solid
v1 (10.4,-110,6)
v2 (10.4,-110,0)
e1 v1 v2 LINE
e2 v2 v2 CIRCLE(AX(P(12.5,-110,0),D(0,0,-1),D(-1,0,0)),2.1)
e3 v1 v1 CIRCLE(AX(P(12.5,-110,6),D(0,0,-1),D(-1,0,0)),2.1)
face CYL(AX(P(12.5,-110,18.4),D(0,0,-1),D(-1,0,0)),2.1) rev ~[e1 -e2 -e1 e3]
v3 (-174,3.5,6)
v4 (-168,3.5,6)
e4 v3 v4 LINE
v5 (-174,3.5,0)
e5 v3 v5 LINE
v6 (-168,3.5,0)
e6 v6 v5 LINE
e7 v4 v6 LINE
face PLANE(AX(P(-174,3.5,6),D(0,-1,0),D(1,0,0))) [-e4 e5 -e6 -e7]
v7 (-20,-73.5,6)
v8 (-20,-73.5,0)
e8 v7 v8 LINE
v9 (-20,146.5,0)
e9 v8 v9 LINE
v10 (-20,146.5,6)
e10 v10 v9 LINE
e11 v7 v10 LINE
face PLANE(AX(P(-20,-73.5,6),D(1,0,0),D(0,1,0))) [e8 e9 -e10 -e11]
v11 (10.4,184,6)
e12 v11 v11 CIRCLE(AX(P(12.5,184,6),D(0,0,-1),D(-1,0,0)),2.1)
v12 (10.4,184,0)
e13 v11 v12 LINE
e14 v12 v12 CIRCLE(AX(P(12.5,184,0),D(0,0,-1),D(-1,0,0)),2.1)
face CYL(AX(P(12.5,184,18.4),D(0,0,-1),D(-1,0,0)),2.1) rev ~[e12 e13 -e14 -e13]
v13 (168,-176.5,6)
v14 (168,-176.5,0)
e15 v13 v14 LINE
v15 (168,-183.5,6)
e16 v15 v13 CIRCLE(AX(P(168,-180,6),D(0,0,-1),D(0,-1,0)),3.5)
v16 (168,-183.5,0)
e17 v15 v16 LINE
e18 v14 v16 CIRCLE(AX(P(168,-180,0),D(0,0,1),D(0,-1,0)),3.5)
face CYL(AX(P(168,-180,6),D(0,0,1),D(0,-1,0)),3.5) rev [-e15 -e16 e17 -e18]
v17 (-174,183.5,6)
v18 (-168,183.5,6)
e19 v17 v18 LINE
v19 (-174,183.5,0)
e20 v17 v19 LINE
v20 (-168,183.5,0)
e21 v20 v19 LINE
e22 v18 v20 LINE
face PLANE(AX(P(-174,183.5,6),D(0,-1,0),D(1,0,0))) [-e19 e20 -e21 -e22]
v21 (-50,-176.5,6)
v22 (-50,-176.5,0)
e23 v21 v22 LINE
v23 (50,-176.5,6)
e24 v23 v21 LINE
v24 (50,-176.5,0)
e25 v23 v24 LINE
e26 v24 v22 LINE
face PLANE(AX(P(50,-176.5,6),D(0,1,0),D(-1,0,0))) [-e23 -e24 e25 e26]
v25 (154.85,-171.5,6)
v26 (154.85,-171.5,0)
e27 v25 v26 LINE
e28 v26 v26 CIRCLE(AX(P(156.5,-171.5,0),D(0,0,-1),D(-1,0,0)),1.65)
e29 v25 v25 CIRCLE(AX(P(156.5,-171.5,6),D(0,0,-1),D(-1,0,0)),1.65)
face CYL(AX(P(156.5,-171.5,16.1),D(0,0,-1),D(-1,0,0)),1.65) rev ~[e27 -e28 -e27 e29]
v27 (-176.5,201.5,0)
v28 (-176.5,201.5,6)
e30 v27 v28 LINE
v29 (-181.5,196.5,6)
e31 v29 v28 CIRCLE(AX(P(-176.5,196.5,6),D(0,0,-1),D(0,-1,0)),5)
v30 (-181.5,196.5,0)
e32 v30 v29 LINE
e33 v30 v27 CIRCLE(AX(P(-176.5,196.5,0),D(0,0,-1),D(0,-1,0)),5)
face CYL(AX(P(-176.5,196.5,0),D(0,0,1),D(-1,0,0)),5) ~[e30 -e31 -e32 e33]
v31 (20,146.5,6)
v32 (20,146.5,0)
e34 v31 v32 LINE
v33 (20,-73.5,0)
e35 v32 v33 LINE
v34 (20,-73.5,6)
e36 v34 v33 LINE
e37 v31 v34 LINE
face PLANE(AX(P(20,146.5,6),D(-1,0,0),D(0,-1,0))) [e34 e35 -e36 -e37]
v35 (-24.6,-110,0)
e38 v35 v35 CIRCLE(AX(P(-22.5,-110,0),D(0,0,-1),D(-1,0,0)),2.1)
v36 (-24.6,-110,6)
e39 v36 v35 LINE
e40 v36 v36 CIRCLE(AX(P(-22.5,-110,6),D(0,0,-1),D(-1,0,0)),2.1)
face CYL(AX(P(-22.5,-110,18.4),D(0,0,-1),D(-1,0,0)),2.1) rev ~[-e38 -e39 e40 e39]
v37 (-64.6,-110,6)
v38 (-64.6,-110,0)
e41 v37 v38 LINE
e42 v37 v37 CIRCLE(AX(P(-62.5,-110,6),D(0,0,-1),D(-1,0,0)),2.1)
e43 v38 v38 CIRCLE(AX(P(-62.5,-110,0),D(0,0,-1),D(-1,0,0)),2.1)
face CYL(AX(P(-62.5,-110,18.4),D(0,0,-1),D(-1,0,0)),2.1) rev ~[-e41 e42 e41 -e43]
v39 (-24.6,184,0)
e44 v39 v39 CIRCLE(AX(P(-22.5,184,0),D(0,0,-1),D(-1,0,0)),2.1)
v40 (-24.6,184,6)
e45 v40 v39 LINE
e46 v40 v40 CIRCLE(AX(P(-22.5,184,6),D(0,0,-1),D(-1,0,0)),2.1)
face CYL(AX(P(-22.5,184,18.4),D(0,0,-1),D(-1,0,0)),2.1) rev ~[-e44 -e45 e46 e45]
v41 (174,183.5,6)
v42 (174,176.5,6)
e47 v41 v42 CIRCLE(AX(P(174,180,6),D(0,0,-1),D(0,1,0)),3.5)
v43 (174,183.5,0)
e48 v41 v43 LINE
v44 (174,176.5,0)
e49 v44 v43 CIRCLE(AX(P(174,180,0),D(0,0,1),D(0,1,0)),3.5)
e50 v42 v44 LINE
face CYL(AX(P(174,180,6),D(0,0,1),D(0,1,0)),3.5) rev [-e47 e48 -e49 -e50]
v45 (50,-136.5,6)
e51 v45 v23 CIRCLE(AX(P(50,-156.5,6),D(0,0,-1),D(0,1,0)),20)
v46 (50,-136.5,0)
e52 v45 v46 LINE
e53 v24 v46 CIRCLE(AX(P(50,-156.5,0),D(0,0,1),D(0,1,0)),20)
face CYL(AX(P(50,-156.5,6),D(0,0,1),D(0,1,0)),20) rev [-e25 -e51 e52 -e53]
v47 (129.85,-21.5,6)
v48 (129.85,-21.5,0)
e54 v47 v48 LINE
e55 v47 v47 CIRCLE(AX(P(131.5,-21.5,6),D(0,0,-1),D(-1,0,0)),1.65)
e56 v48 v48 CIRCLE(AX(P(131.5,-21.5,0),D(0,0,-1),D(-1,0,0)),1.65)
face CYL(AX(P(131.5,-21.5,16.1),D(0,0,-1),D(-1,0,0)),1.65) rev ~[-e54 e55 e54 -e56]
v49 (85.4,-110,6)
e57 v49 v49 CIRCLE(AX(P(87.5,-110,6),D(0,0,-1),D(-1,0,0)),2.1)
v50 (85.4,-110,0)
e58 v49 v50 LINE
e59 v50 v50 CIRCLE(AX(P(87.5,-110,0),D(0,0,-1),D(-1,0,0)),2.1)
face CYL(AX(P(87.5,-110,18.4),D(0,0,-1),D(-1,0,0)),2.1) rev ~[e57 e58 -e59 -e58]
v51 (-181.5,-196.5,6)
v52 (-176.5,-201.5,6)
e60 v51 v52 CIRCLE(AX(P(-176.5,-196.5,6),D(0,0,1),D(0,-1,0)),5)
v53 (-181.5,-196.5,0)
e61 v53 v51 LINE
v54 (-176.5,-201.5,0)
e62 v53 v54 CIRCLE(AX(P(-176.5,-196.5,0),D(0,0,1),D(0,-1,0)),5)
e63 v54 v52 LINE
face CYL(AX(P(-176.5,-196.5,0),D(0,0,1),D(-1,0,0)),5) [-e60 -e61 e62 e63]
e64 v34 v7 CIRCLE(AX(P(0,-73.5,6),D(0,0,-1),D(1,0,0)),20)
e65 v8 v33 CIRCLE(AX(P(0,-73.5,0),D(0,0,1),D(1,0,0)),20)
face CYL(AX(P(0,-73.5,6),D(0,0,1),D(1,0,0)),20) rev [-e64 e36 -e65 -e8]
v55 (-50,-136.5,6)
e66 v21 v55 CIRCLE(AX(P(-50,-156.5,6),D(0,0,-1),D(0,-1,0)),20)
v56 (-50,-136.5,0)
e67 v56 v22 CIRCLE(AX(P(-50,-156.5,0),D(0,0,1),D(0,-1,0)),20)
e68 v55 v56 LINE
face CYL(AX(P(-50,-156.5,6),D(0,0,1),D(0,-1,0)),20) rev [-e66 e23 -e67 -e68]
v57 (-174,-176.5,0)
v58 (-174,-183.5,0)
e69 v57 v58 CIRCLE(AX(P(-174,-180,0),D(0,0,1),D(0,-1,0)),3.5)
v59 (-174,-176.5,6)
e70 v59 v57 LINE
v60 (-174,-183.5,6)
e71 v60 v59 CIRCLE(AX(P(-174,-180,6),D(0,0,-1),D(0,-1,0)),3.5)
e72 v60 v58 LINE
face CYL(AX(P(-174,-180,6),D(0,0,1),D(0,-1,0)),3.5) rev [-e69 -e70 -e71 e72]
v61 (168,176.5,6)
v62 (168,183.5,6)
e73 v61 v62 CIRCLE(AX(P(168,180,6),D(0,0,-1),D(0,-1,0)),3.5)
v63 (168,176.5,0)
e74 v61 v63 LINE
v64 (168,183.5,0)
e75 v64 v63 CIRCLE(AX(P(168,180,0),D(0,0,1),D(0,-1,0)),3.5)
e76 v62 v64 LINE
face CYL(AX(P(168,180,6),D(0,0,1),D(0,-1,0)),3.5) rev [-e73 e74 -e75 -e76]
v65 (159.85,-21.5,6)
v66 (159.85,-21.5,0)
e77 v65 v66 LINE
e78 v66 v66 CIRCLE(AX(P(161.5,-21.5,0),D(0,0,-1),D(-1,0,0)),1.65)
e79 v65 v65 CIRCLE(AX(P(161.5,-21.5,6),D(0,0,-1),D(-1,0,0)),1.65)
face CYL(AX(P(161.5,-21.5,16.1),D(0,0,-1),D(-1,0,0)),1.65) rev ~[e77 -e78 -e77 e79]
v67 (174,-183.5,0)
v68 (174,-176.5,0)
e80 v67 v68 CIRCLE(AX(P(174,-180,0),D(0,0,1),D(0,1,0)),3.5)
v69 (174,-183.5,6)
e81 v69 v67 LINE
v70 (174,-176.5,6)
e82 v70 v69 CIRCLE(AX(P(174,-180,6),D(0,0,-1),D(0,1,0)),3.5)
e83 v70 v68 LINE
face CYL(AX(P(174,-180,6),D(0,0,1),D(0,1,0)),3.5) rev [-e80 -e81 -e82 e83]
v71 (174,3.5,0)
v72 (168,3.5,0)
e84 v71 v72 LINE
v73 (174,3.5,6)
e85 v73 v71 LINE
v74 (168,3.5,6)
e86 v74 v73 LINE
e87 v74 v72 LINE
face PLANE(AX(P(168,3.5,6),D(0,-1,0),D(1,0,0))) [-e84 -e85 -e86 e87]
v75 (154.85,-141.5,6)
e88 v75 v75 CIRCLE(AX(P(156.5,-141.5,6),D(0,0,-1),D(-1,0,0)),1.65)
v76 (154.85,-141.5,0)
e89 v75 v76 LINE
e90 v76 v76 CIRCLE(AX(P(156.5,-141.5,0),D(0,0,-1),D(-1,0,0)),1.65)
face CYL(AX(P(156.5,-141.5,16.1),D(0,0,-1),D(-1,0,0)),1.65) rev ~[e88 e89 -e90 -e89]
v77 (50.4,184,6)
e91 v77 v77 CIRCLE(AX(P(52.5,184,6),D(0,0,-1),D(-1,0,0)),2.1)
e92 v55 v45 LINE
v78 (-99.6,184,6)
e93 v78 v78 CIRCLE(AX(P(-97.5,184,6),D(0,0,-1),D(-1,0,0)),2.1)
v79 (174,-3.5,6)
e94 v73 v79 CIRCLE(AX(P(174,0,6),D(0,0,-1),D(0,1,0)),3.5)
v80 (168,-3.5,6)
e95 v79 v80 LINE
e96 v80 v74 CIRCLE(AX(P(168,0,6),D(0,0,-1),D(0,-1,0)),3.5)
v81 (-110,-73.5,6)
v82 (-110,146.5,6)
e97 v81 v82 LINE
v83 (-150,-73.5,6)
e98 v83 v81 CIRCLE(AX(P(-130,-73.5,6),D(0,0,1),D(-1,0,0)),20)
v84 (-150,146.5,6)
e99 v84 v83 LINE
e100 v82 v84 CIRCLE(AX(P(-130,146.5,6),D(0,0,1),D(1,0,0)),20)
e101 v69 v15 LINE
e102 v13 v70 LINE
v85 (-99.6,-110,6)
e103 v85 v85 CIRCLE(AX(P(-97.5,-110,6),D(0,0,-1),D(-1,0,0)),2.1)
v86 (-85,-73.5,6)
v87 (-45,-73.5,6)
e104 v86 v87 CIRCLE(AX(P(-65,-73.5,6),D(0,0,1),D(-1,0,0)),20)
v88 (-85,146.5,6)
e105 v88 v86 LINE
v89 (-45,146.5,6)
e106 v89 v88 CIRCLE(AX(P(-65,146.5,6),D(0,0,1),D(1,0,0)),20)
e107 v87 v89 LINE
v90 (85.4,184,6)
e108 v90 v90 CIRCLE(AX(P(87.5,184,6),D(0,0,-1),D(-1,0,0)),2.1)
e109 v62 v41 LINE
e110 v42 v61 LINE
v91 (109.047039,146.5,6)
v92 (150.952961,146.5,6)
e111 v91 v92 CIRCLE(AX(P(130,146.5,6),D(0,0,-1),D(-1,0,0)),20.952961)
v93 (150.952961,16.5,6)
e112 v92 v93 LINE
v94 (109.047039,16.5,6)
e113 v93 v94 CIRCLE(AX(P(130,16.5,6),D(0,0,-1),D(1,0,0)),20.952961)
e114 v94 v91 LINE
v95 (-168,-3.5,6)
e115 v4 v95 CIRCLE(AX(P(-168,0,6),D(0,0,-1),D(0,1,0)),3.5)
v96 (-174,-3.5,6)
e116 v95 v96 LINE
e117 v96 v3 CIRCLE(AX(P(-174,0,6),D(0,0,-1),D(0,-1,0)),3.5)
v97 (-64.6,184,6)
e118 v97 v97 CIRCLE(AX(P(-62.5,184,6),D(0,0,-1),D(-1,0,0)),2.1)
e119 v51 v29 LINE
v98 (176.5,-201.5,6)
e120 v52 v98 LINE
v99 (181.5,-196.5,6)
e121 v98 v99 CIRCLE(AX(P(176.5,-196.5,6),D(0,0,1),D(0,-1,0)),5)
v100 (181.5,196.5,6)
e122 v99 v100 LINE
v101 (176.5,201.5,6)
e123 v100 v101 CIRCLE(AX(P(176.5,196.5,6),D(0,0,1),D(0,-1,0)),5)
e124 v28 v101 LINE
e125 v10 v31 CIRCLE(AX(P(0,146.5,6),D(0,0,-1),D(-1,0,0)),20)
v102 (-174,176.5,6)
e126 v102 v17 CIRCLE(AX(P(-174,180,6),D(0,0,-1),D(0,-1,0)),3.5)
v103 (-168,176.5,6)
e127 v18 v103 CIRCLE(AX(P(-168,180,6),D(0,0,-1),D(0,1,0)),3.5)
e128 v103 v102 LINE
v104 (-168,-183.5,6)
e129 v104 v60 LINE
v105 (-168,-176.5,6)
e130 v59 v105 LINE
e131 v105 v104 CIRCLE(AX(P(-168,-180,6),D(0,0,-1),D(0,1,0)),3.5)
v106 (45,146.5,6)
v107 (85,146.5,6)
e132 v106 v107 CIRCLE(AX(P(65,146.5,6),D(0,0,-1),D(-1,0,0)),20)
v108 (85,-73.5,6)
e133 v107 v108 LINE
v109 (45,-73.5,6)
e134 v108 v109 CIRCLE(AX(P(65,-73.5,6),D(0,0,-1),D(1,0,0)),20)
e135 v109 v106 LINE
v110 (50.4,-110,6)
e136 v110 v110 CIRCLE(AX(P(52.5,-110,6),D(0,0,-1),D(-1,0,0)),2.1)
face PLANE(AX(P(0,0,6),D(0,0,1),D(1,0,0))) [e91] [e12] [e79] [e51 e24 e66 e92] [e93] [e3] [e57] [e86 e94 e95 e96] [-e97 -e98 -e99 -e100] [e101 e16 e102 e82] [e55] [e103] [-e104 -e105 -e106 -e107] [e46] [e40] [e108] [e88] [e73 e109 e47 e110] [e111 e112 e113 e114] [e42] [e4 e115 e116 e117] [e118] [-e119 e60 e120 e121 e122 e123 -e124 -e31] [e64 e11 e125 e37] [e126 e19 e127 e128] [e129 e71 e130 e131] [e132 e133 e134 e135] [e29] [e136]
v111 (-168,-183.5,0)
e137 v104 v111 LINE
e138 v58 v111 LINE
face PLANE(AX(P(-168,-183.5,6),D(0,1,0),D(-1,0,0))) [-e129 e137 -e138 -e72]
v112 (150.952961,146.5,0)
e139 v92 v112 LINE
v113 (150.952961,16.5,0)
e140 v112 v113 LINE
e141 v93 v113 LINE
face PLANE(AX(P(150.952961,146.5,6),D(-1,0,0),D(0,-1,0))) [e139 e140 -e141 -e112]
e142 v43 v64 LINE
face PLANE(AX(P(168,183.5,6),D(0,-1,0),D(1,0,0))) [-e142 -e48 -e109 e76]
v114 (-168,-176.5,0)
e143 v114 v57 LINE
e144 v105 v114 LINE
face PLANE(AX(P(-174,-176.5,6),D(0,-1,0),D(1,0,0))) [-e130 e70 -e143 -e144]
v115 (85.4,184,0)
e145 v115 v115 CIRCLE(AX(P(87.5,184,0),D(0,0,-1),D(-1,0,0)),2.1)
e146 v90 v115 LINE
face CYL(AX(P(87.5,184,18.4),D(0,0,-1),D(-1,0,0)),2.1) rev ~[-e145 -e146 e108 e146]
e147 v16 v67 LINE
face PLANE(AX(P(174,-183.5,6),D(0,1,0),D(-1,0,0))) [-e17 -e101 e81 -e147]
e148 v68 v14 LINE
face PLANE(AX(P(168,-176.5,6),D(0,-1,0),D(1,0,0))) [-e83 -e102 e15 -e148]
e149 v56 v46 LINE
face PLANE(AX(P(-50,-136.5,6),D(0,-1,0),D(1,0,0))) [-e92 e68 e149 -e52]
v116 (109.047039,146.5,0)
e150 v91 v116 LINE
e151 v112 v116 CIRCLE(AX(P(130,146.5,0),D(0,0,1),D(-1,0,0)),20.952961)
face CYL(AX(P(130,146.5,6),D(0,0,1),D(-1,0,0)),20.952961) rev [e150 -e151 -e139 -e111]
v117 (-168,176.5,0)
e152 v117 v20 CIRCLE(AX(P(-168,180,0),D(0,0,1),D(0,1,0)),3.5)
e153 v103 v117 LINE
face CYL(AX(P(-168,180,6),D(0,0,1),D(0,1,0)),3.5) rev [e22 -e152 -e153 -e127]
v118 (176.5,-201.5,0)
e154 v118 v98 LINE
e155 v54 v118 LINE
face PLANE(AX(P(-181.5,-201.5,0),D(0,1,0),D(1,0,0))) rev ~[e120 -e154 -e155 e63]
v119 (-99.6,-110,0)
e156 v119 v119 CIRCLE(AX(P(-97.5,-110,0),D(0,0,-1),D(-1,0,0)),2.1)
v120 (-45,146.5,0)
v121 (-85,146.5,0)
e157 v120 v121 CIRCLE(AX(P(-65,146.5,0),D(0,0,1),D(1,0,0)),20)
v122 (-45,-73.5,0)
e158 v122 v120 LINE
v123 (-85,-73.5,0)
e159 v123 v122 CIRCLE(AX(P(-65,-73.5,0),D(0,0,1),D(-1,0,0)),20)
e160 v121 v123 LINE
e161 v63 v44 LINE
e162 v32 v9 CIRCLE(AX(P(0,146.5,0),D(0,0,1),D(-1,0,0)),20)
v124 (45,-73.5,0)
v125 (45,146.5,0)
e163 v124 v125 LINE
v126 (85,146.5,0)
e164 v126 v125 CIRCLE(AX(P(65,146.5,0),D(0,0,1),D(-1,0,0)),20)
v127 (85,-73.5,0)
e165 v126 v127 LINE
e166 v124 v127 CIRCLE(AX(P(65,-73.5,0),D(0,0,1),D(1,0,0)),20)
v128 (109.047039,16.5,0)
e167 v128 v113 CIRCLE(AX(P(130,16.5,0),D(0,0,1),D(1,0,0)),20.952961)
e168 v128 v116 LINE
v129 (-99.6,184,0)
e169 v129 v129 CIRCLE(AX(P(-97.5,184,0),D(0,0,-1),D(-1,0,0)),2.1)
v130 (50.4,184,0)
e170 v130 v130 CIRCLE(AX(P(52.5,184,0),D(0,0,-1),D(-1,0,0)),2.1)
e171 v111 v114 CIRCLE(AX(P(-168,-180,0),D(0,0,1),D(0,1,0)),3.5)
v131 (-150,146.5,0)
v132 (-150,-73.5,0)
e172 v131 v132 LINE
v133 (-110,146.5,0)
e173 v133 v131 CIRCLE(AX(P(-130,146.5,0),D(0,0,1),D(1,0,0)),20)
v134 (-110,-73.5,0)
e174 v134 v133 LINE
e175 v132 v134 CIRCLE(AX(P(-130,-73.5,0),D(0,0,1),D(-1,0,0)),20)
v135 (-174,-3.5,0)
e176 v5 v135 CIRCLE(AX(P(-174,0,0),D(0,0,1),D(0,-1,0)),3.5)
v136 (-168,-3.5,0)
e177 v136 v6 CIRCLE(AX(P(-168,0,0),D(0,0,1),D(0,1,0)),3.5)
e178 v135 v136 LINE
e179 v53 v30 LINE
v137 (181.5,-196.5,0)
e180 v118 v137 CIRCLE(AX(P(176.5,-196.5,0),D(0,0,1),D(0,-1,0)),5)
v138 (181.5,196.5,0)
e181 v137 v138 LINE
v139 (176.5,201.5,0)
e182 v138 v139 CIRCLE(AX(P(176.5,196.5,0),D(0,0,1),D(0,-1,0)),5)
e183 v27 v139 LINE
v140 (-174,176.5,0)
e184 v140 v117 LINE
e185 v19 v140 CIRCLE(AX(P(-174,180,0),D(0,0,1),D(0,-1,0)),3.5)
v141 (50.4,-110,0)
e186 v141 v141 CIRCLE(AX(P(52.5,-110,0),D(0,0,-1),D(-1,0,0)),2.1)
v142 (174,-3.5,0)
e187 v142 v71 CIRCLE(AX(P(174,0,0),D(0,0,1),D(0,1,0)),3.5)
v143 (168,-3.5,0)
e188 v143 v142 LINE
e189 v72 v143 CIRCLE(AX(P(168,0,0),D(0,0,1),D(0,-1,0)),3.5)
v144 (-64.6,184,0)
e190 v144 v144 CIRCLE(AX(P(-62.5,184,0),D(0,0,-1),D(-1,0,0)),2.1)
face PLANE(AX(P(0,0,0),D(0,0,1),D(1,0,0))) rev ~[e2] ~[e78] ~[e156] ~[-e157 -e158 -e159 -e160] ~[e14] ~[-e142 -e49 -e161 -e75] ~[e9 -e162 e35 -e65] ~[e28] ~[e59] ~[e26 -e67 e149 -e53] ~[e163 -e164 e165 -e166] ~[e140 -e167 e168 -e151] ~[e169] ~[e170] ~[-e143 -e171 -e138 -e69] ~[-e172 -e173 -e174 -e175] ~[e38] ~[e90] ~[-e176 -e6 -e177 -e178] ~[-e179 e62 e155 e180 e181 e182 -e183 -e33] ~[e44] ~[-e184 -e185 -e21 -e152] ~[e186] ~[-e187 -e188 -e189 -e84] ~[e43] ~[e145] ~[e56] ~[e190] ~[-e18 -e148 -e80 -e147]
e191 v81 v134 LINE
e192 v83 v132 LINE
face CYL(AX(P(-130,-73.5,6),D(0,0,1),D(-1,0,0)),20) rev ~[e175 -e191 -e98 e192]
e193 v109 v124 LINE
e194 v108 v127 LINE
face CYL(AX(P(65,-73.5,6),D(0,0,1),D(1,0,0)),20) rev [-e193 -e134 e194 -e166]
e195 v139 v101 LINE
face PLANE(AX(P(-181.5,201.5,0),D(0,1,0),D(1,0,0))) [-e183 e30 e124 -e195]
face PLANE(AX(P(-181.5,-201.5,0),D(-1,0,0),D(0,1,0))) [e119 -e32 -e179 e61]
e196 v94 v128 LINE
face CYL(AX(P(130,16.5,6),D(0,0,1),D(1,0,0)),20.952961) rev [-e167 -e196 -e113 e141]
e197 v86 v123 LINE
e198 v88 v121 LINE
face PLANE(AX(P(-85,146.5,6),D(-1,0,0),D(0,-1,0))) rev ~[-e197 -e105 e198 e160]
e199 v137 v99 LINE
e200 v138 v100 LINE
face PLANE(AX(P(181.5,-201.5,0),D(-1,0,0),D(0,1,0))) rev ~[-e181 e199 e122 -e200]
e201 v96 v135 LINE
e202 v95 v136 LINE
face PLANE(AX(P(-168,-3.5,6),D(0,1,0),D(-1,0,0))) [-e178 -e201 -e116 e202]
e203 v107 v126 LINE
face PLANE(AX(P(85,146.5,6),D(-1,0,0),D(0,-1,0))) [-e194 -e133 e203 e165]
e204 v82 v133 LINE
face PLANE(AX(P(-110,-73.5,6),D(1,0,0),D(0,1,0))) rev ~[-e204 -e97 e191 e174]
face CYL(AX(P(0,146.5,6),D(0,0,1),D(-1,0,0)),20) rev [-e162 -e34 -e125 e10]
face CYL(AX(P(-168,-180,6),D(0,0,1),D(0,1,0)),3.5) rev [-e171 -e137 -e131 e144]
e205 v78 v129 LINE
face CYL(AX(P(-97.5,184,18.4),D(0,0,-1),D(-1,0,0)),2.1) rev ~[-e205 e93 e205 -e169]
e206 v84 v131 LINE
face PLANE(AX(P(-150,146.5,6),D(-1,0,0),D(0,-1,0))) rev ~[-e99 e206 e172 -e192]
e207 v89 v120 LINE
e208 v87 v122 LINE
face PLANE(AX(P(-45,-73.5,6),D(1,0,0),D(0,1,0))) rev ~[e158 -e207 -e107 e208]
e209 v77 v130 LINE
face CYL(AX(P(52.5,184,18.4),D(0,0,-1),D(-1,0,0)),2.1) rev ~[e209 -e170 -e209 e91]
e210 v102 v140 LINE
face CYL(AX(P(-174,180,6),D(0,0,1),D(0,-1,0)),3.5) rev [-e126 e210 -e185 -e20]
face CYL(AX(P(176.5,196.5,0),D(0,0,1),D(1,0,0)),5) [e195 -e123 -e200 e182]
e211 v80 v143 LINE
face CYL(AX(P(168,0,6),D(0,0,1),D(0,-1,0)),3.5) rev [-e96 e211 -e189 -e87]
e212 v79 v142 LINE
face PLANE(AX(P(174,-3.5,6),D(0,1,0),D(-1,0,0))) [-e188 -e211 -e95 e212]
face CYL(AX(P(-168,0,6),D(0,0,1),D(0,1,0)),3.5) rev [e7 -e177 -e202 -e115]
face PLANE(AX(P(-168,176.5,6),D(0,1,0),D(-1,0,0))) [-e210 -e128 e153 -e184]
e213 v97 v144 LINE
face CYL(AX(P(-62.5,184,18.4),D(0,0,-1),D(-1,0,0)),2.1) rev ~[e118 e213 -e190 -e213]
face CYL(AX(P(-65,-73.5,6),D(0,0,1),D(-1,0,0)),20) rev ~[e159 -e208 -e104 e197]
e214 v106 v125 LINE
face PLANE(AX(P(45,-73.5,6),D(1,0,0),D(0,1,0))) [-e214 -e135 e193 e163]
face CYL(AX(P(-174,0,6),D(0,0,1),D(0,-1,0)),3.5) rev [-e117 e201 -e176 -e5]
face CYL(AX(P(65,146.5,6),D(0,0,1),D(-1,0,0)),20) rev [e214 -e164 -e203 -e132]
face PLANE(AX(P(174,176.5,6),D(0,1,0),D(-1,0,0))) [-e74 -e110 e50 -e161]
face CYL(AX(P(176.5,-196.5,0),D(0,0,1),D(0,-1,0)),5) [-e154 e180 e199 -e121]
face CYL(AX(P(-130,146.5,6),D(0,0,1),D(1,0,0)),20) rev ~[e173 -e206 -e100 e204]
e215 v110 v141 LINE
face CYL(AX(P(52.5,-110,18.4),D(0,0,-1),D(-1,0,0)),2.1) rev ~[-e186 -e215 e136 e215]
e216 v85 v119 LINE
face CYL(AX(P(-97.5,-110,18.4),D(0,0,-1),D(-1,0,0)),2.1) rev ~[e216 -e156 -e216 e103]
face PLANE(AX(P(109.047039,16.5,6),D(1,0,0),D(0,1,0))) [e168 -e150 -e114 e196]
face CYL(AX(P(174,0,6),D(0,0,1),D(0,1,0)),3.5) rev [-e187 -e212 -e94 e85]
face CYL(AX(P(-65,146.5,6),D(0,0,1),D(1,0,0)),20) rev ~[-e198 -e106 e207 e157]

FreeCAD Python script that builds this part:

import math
import FreeCAD as App
import Part
import Sketcher
Q = App.Units.Quantity


def edges_at(feature, points):
    """Names of the edges that pass closest to the given points."""
    edges = feature.Shape.Edges
    near = lambda p: min(range(len(edges)), key=lambda i: edges[i].distToShape(Part.Vertex(*p))[0])
    return sorted({f"Edge{near(p) + 1}" for p in points})

doc = App.newDocument("Part")
body = doc.addObject("PartDesign::Body", "Body")

# Sketch on XY plane
sketch1 = body.newObject("Sketcher::SketchObject", "Sketch")
sketch1.AttachmentSupport = (doc.getObject("XY_Plane"), [""])
sketch1.MapMode = "FlatFace"
sketch1.addGeometry(Part.LineSegment(App.Vector(-182, 202, 0), App.Vector(-182, -202, 0)), False)
sketch1.addGeometry(Part.LineSegment(App.Vector(-182, -202, 0), App.Vector(182, -202, 0)), False)
sketch1.addGeometry(Part.LineSegment(App.Vector(182, -202, 0), App.Vector(182, 202, 0)), False)
sketch1.addGeometry(Part.LineSegment(App.Vector(182, 202, 0), App.Vector(-182, 202, 0)), False)
sketch1.addConstraint(Sketcher.Constraint("Coincident", 0, 2, 1, 1))
sketch1.addConstraint(Sketcher.Constraint("Coincident", 1, 2, 2, 1))
sketch1.addConstraint(Sketcher.Constraint("Coincident", 2, 2, 3, 1))
sketch1.addConstraint(Sketcher.Constraint("Coincident", 3, 2, 0, 1))
sketch1.addConstraint(Sketcher.Constraint("Vertical", 0))
sketch1.addConstraint(Sketcher.Constraint("Horizontal", 1))
sketch1.addConstraint(Sketcher.Constraint("Vertical", 2))
sketch1.addConstraint(Sketcher.Constraint("Horizontal", 3))
sketch1.addConstraint(Sketcher.Constraint("Symmetric", 0, 2, 2, 2, -1, 1))
sketch1.addConstraint(Sketcher.Constraint("DistanceX", 1, 1, 1, 2, Q("363 mm")))
sketch1.addConstraint(Sketcher.Constraint("DistanceY", 0, 2, 0, 1, Q("403 mm")))
pad1 = body.newObject("PartDesign::Pad", "Pad")
pad1.Profile = sketch1
pad1.Length = 6
doc.recompute()

fillet = body.newObject("PartDesign::Fillet", "Fillet")
fillet.Base = (pad1, edges_at(pad1, [
    (181.5, -201.5, 3),
    (-181.5, -201.5, 3),
    (-181.5, 201.5, 3),
    (181.5, 201.5, 3),
]))
fillet.Radius = 5

# Sketch on XY plane
sketch2 = body.newObject("Sketcher::SketchObject", "Sketch001")
sketch2.AttachmentSupport = (doc.getObject("XY_Plane"), [""])
sketch2.MapMode = "FlatFace"
sketch2.AttachmentOffset = App.Placement(App.Vector(0, 0, 6), App.Rotation())
sketch2.addGeometry(Part.Circle(App.Vector(-171, -180, 0), App.Vector(0, 0, 1), 3.5), False)
sketch2.addGeometry(Part.Circle(App.Vector(-171, 180, 0), App.Vector(0, 0, 1), 3.5), False)
sketch2.addGeometry(Part.Circle(App.Vector(-171, 0, 0), App.Vector(0, 0, 1), 3.5), False)
sketch2.addGeometry(Part.Circle(App.Vector(171, 0, 0), App.Vector(0, 0, 1), 3.5), False)
sketch2.addGeometry(Part.Circle(App.Vector(171, 180, 0), App.Vector(0, 0, 1), 3.5), False)
sketch2.addGeometry(Part.Circle(App.Vector(171, -180, 0), App.Vector(0, 0, 1), 3.5), False)
sketch2.addConstraint(Sketcher.Constraint("Equal", 0, 1))
sketch2.addConstraint(Sketcher.Constraint("Equal", 1, 2))
sketch2.addConstraint(Sketcher.Constraint("Equal", 2, 3))
sketch2.addConstraint(Sketcher.Constraint("Equal", 3, 4))
sketch2.addConstraint(Sketcher.Constraint("Equal", 4, 5))
sketch2.addConstraint(Sketcher.Constraint("Symmetric", 2, 3, 3, 3, -1, 1))
sketch2.addConstraint(Sketcher.Constraint("Symmetric", 0, 3, 4, 3, -1, 1))
sketch2.addConstraint(Sketcher.Constraint("Symmetric", 1, 3, 5, 3, -1, 1))
sketch2.addConstraint(Sketcher.Constraint("Symmetric", 1, 3, 4, 3, -2))
sketch2.addConstraint(Sketcher.Constraint("PointOnObject", 2, 3, -1))
sketch2.addConstraint(Sketcher.Constraint("Vertical", 1, 3, 2, 3))
sketch2.addConstraint(Sketcher.Constraint("Diameter", 0, Q("7 mm")))
sketch2.addConstraint(Sketcher.Constraint("DistanceX", 0, 3, -1, 1, Q("171 mm")))
sketch2.addConstraint(Sketcher.Constraint("DistanceY", 0, 3, -1, 1, Q("180 mm")))
pocket1 = body.newObject("PartDesign::Pocket", "Pocket")
pocket1.Profile = sketch2
pocket1.Length = 10

# Sketch on XY plane
sketch3 = body.newObject("Sketcher::SketchObject", "Sketch002")
sketch3.AttachmentSupport = (doc.getObject("XY_Plane"), [""])
sketch3.MapMode = "FlatFace"
sketch3.AttachmentOffset = App.Placement(App.Vector(0, 0, 6), App.Rotation())
sketch3.addGeometry(Part.Circle(App.Vector(-97.5, -110, 0), App.Vector(0, 0, 1), 2.1), False)
sketch3.addGeometry(Part.Circle(App.Vector(-62.5, -110, 0), App.Vector(0, 0, 1), 2.1), False)
sketch3.addGeometry(Part.Circle(App.Vector(-97.5, 184, 0), App.Vector(0, 0, 1), 2.1), False)
sketch3.addGeometry(Part.Circle(App.Vector(-62.5, 184, 0), App.Vector(0, 0, 1), 2.1), False)
sketch3.addGeometry(Part.Circle(App.Vector(-22.5, -110, 0), App.Vector(0, 0, 1), 2.1), False)
sketch3.addGeometry(Part.Circle(App.Vector(12.5, -110, 0), App.Vector(0, 0, 1), 2.1), False)
sketch3.addGeometry(Part.Circle(App.Vector(-22.5, 184, 0), App.Vector(0, 0, 1), 2.1), False)
sketch3.addGeometry(Part.Circle(App.Vector(12.5, 184, 0), App.Vector(0, 0, 1), 2.1), False)
sketch3.addGeometry(Part.Circle(App.Vector(52.5, -110, 0), App.Vector(0, 0, 1), 2.1), False)
sketch3.addGeometry(Part.Circle(App.Vector(87.5, -110, 0), App.Vector(0, 0, 1), 2.1), False)
sketch3.addGeometry(Part.Circle(App.Vector(52.5, 184, 0), App.Vector(0, 0, 1), 2.1), False)
sketch3.addGeometry(Part.Circle(App.Vector(87.5, 184, 0), App.Vector(0, 0, 1), 2.1), False)
sketch3.addConstraint(Sketcher.Constraint("Equal", 0, 1))
sketch3.addConstraint(Sketcher.Constraint("Equal", 1, 2))
sketch3.addConstraint(Sketcher.Constraint("Equal", 2, 3))
sketch3.addConstraint(Sketcher.Constraint("Equal", 3, 4))
sketch3.addConstraint(Sketcher.Constraint("Equal", 4, 5))
sketch3.addConstraint(Sketcher.Constraint("Equal", 5, 6))
sketch3.addConstraint(Sketcher.Constraint("Equal", 6, 7))
sketch3.addConstraint(Sketcher.Constraint("Equal", 7, 8))
sketch3.addConstraint(Sketcher.Constraint("Equal", 8, 9))
sketch3.addConstraint(Sketcher.Constraint("Equal", 9, 10))
sketch3.addConstraint(Sketcher.Constraint("Equal", 10, 11))
sketch3.addConstraint(Sketcher.Constraint("Horizontal", 0, 3, 1, 3))
sketch3.addConstraint(Sketcher.Constraint("Horizontal", 2, 3, 3, 3))
sketch3.addConstraint(Sketcher.Constraint("Horizontal", 1, 3, 4, 3))
sketch3.addConstraint(Sketcher.Constraint("Horizontal", 4, 3, 5, 3))
sketch3.addConstraint(Sketcher.Constraint("Horizontal", 3, 3, 6, 3))
sketch3.addConstraint(Sketcher.Constraint("Horizontal", 6, 3, 7, 3))
sketch3.addConstraint(Sketcher.Constraint("Horizontal", 5, 3, 8, 3))
sketch3.addConstraint(Sketcher.Constraint("Horizontal", 8, 3, 9, 3))
sketch3.addConstraint(Sketcher.Constraint("Horizontal", 7, 3, 10, 3))
sketch3.addConstraint(Sketcher.Constraint("Horizontal", 10, 3, 11, 3))
sketch3.addConstraint(Sketcher.Constraint("Vertical", 0, 3, 2, 3))
sketch3.addConstraint(Sketcher.Constraint("Vertical", 1, 3, 3, 3))
sketch3.addConstraint(Sketcher.Constraint("Vertical", 4, 3, 6, 3))
sketch3.addConstraint(Sketcher.Constraint("Vertical", 5, 3, 7, 3))
sketch3.addConstraint(Sketcher.Constraint("Vertical", 8, 3, 10, 3))
sketch3.addConstraint(Sketcher.Constraint("Vertical", 9, 3, 11, 3))
sketch3.addConstraint(Sketcher.Constraint("Diameter", 0, Q("4.2 mm")))
sketch3.addConstraint(Sketcher.Constraint("DistanceY", 0, 3, -1, 1, Q("110 mm")))
sketch3.addConstraint(Sketcher.Constraint("DistanceY", -1, 1, 2, 3, Q("184 mm")))
sketch3.addConstraint(Sketcher.Constraint("DistanceX", 0, 3, 1, 3, Q("35 mm")))
sketch3.addConstraint(Sketcher.Constraint("DistanceX", 1, 3, 4, 3, Q("40 mm")))
sketch3.addConstraint(Sketcher.Constraint("DistanceX", 4, 3, 5, 3, Q("35 mm")))
sketch3.addConstraint(Sketcher.Constraint("DistanceX", 5, 3, 8, 3, Q("40 mm")))
sketch3.addConstraint(Sketcher.Constraint("DistanceX", 8, 3, 9, 3, Q("35 mm")))
sketch3.addConstraint(Sketcher.Constraint("DistanceX", 0, 3, -1, 1, Q("97.5 mm")))
doc.recompute()
hole = body.newObject("PartDesign::Hole", "Hole")
hole.Profile = sketch3
hole.ThreadType = "None"
hole.Diameter = 4.2
hole.DepthType = "Dimension"
hole.Depth = 12.4
hole.DrillPoint = "Angled"
hole.DrillPointAngle = 118

# Sketch on XY plane
sketch4 = body.newObject("Sketcher::SketchObject", "Sketch003")
sketch4.AttachmentSupport = (doc.getObject("XY_Plane"), [""])
sketch4.MapMode = "FlatFace"
sketch4.AttachmentOffset = App.Placement(App.Vector(0, 0, 6), App.Rotation())
sketch4.addGeometry(Part.LineSegment(App.Vector(-168, 183.5, 0), App.Vector(-174, 183.5, 0)), False)
sketch4.addGeometry(Part.ArcOfCircle(Part.Circle(App.Vector(-174, 180, 0), App.Vector(0, 0, 1), 3.5), math.radians(90), math.radians(270)), False)
sketch4.addGeometry(Part.LineSegment(App.Vector(-174, 176.5, 0), App.Vector(-168, 176.5, 0)), False)
sketch4.addGeometry(Part.ArcOfCircle(Part.Circle(App.Vector(-168, 180, 0), App.Vector(0, 0, 1), 3.5), math.radians(-90), math.radians(90)), False)
sketch4.addGeometry(Part.LineSegment(App.Vector(174, 183.5, 0), App.Vector(168, 183.5, 0)), False)
sketch4.addGeometry(Part.ArcOfCircle(Part.Circle(App.Vector(168, 180, 0), App.Vector(0, 0, 1), 3.5), math.radians(90), math.radians(270)), False)
sketch4.addGeometry(Part.LineSegment(App.Vector(168, 176.5, 0), App.Vector(174, 176.5, 0)), False)
sketch4.addGeometry(Part.ArcOfCircle(Part.Circle(App.Vector(174, 180, 0), App.Vector(0, 0, 1), 3.5), math.radians(-90), math.radians(90)), False)
sketch4.addGeometry(Part.LineSegment(App.Vector(174, 3.5, 0), App.Vector(168, 3.5, 0)), False)
sketch4.addGeometry(Part.ArcOfCircle(Part.Circle(App.Vector(168, 0, 0), App.Vector(0, 0, 1), 3.5), math.radians(90), math.radians(270)), False)
sketch4.addGeometry(Part.LineSegment(App.Vector(168, -3.5, 0), App.Vector(174, -3.5, 0)), False)
sketch4.addGeometry(Part.ArcOfCircle(Part.Circle(App.Vector(174, 0, 0), App.Vector(0, 0, 1), 3.5), math.radians(-90), math.radians(90)), False)
sketch4.addGeometry(Part.LineSegment(App.Vector(174, -176.5, 0), App.Vector(168, -176.5, 0)), False)
sketch4.addGeometry(Part.ArcOfCircle(Part.Circle(App.Vector(168, -180, 0), App.Vector(0, 0, 1), 3.5), math.radians(90), math.radians(270)), False)
sketch4.addGeometry(Part.LineSegment(App.Vector(168, -183.5, 0), App.Vector(174, -183.5, 0)), False)
sketch4.addGeometry(Part.ArcOfCircle(Part.Circle(App.Vector(174, -180, 0), App.Vector(0, 0, 1), 3.5), math.radians(-90), math.radians(90)), False)
sketch4.addGeometry(Part.LineSegment(App.Vector(-168, 3.5, 0), App.Vector(-174, 3.5, 0)), False)
sketch4.addGeometry(Part.ArcOfCircle(Part.Circle(App.Vector(-174, 0, 0), App.Vector(0, 0, 1), 3.5), math.radians(90), math.radians(270)), False)
sketch4.addGeometry(Part.LineSegment(App.Vector(-174, -3.5, 0), App.Vector(-168, -3.5, 0)), False)
sketch4.addGeometry(Part.ArcOfCircle(Part.Circle(App.Vector(-168, 0, 0), App.Vector(0, 0, 1), 3.5), math.radians(-90), math.radians(90)), False)
sketch4.addGeometry(Part.LineSegment(App.Vector(-168, -176.5, 0), App.Vector(-174, -176.5, 0)), False)
sketch4.addGeometry(Part.ArcOfCircle(Part.Circle(App.Vector(-174, -180, 0), App.Vector(0, 0, 1), 3.5), math.radians(90), math.radians(270)), False)
sketch4.addGeometry(Part.LineSegment(App.Vector(-174, -183.5, 0), App.Vector(-168, -183.5, 0)), False)
sketch4.addGeometry(Part.ArcOfCircle(Part.Circle(App.Vector(-168, -180, 0), App.Vector(0, 0, 1), 3.5), math.radians(-90), math.radians(90)), False)
sketch4.addConstraint(Sketcher.Constraint("Tangent", 0, 2, 1, 1))
sketch4.addConstraint(Sketcher.Constraint("Tangent", 1, 2, 2, 1))
sketch4.addConstraint(Sketcher.Constraint("Tangent", 2, 2, 3, 1))
sketch4.addConstraint(Sketcher.Constraint("Tangent", 3, 2, 0, 1))
sketch4.addConstraint(Sketcher.Constraint("Tangent", 4, 2, 5, 1))
sketch4.addConstraint(Sketcher.Constraint("Tangent", 5, 2, 6, 1))
sketch4.addConstraint(Sketcher.Constraint("Tangent", 6, 2, 7, 1))
sketch4.addConstraint(Sketcher.Constraint("Tangent", 7, 2, 4, 1))
sketch4.addConstraint(Sketcher.Constraint("Tangent", 8, 2, 9, 1))
sketch4.addConstraint(Sketcher.Constraint("Tangent", 9, 2, 10, 1))
sketch4.addConstraint(Sketcher.Constraint("Tangent", 10, 2, 11, 1))
sketch4.addConstraint(Sketcher.Constraint("Tangent", 11, 2, 8, 1))
sketch4.addConstraint(Sketcher.Constraint("Tangent", 12, 2, 13, 1))
sketch4.addConstraint(Sketcher.Constraint("Tangent", 13, 2, 14, 1))
sketch4.addConstraint(Sketcher.Constraint("Tangent", 14, 2, 15, 1))
sketch4.addConstraint(Sketcher.Constraint("Tangent", 15, 2, 12, 1))
sketch4.addConstraint(Sketcher.Constraint("Tangent", 16, 2, 17, 1))
sketch4.addConstraint(Sketcher.Constraint("Tangent", 17, 2, 18, 1))
sketch4.addConstraint(Sketcher.Constraint("Tangent", 18, 2, 19, 1))
sketch4.addConstraint(Sketcher.Constraint("Tangent", 19, 2, 16, 1))
sketch4.addConstraint(Sketcher.Constraint("Tangent", 20, 2, 21, 1))
sketch4.addConstraint(Sketcher.Constraint("Tangent", 21, 2, 22, 1))
sketch4.addConstraint(Sketcher.Constraint("Tangent", 22, 2, 23, 1))
sketch4.addConstraint(Sketcher.Constraint("Tangent", 23, 2, 20, 1))
sketch4.addConstraint(Sketcher.Constraint("Horizontal", 0))
sketch4.addConstraint(Sketcher.Constraint("Horizontal", 2))
sketch4.addConstraint(Sketcher.Constraint("Horizontal", 4))
sketch4.addConstraint(Sketcher.Constraint("Horizontal", 6))
sketch4.addConstraint(Sketcher.Constraint("Horizontal", 8))
sketch4.addConstraint(Sketcher.Constraint("Horizontal", 10))
sketch4.addConstraint(Sketcher.Constraint("Horizontal", 12))
sketch4.addConstraint(Sketcher.Constraint("Horizontal", 14))
sketch4.addConstraint(Sketcher.Constraint("Horizontal", 16))
sketch4.addConstraint(Sketcher.Constraint("Horizontal", 18))
sketch4.addConstraint(Sketcher.Constraint("Horizontal", 20))
sketch4.addConstraint(Sketcher.Constraint("Horizontal", 22))
sketch4.addConstraint(Sketcher.Constraint("Equal", 3, 5))
sketch4.addConstraint(Sketcher.Constraint("Equal", 7, 9))
sketch4.addConstraint(Sketcher.Constraint("Equal", 11, 13))
sketch4.addConstraint(Sketcher.Constraint("Equal", 15, 17))
sketch4.addConstraint(Sketcher.Constraint("Equal", 19, 21))
sketch4.addConstraint(Sketcher.Constraint("Symmetric", 3, 3, 13, 3, -1, 1))
sketch4.addConstraint(Sketcher.Constraint("Symmetric", 11, 3, 17, 3, -1, 1))
sketch4.addConstraint(Sketcher.Constraint("Symmetric", 7, 3, 21, 3, -1, 1))
sketch4.addConstraint(Sketcher.Constraint("Symmetric", 3, 3, 5, 3, -2))
sketch4.addConstraint(Sketcher.Constraint("Symmetric", 9, 3, 19, 3, -2))
sketch4.addConstraint(Sketcher.Constraint("Vertical", 5, 3, 9, 3))
sketch4.addConstraint(Sketcher.Constraint("Vertical", 7, 3, 11, 3))
sketch4.addConstraint(Sketcher.Constraint("Vertical", 11, 3, 15, 3))
sketch4.addConstraint(Sketcher.Constraint("Vertical", 1, 3, 17, 3))
sketch4.addConstraint(Sketcher.Constraint("Vertical", 19, 3, 23, 3))
sketch4.addConstraint(Sketcher.Constraint("Radius", 1, Q("3.5 mm")))
sketch4.addConstraint(Sketcher.Constraint("DistanceX", 0, 2, 0, 1, Q("6 mm")))
sketch4.addConstraint(Sketcher.Constraint("DistanceX", 1, 3, -1, 1, Q("174 mm")))
sketch4.addConstraint(Sketcher.Constraint("DistanceY", -1, 1, 1, 3, Q("180 mm")))
pocket2 = body.newObject("PartDesign::Pocket", "Pocket001")
pocket2.Profile = sketch4
pocket2.Length = 10

# Sketch on XY plane
sketch5 = body.newObject("Sketcher::SketchObject", "Sketch004")
sketch5.AttachmentSupport = (doc.getObject("XY_Plane"), [""])
sketch5.MapMode = "FlatFace"
sketch5.AttachmentOffset = App.Placement(App.Vector(0, 0, 6), App.Rotation())
sketch5.addGeometry(Part.LineSegment(App.Vector(50, -136, 0), App.Vector(-50, -136, 0)), False)
sketch5.addGeometry(Part.ArcOfCircle(Part.Circle(App.Vector(-50, -156, 0), App.Vector(0, 0, 1), 20), math.radians(90), math.radians(270)), False)
sketch5.addGeometry(Part.LineSegment(App.Vector(-50, -176, 0), App.Vector(50, -176, 0)), False)
sketch5.addGeometry(Part.ArcOfCircle(Part.Circle(App.Vector(50, -156, 0), App.Vector(0, 0, 1), 20), math.radians(-90), math.radians(90)), False)
sketch5.addConstraint(Sketcher.Constraint("Tangent", 0, 2, 1, 1))
sketch5.addConstraint(Sketcher.Constraint("Tangent", 1, 2, 2, 1))
sketch5.addConstraint(Sketcher.Constraint("Tangent", 2, 2, 3, 1))
sketch5.addConstraint(Sketcher.Constraint("Tangent", 3, 2, 0, 1))
sketch5.addConstraint(Sketcher.Constraint("Horizontal", 0))
sketch5.addConstraint(Sketcher.Constraint("Horizontal", 2))
sketch5.addConstraint(Sketcher.Constraint("Radius", 1, Q("20 mm")))
sketch5.addConstraint(Sketcher.Constraint("DistanceX", 0, 2, 0, 1, Q("100 mm")))
sketch5.addConstraint(Sketcher.Constraint("DistanceX", 1, 3, -1, 1, Q("50 mm")))
sketch5.addConstraint(Sketcher.Constraint("DistanceY", 1, 3, -1, 1, Q("156.5 mm")))
pocket3 = body.newObject("PartDesign::Pocket", "Pocket002")
pocket3.Profile = sketch5
pocket3.Length = 10

# Sketch on XY plane
sketch6 = body.newObject("Sketcher::SketchObject", "Sketch005")
sketch6.AttachmentSupport = (doc.getObject("XY_Plane"), [""])
sketch6.MapMode = "FlatFace"
sketch6.AttachmentOffset = App.Placement(App.Vector(0, 0, 6), App.Rotation())
sketch6.addGeometry(Part.LineSegment(App.Vector(20, -74, 0), App.Vector(20, 146, 0)), False)
sketch6.addGeometry(Part.ArcOfCircle(Part.Circle(App.Vector(0, 146, 0), App.Vector(0, 0, 1), 20), math.radians(0), math.radians(180)), False)
sketch6.addGeometry(Part.LineSegment(App.Vector(-20, 146, 0), App.Vector(-20, -74, 0)), False)
sketch6.addGeometry(Part.ArcOfCircle(Part.Circle(App.Vector(0, -74, 0), App.Vector(0, 0, 1), 20), math.radians(180), math.radians(360)), False)
sketch6.addGeometry(Part.LineSegment(App.Vector(85, -74, 0), App.Vector(85, 146, 0)), False)
sketch6.addGeometry(Part.ArcOfCircle(Part.Circle(App.Vector(65, 146, 0), App.Vector(0, 0, 1), 20), math.radians(0), math.radians(180)), False)
sketch6.addGeometry(Part.LineSegment(App.Vector(45, 146, 0), App.Vector(45, -74, 0)), False)
sketch6.addGeometry(Part.ArcOfCircle(Part.Circle(App.Vector(65, -74, 0), App.Vector(0, 0, 1), 20), math.radians(180), math.radians(360)), False)
sketch6.addGeometry(Part.LineSegment(App.Vector(-150, 146, 0), App.Vector(-150, -74, 0)), False)
sketch6.addGeometry(Part.ArcOfCircle(Part.Circle(App.Vector(-130, -74, 0), App.Vector(0, 0, 1), 20), math.radians(180), math.radians(360)), False)
sketch6.addGeometry(Part.LineSegment(App.Vector(-110, -74, 0), App.Vector(-110, 146, 0)), False)
sketch6.addGeometry(Part.ArcOfCircle(Part.Circle(App.Vector(-130, 146, 0), App.Vector(0, 0, 1), 20), math.radians(0), math.radians(180)), False)
sketch6.addGeometry(Part.LineSegment(App.Vector(-85, 146, 0), App.Vector(-85, -74, 0)), False)
sketch6.addGeometry(Part.ArcOfCircle(Part.Circle(App.Vector(-65, -74, 0), App.Vector(0, 0, 1), 20), math.radians(180), math.radians(360)), False)
sketch6.addGeometry(Part.LineSegment(App.Vector(-45, -74, 0), App.Vector(-45, 146, 0)), False)
sketch6.addGeometry(Part.ArcOfCircle(Part.Circle(App.Vector(-65, 146, 0), App.Vector(0, 0, 1), 20), math.radians(0), math.radians(180)), False)
sketch6.addGeometry(Part.LineSegment(App.Vector(151, 16, 0), App.Vector(151, 146, 0)), False)
sketch6.addGeometry(Part.ArcOfCircle(Part.Circle(App.Vector(130, 146, 0), App.Vector(0, 0, 1), 21), math.radians(0), math.radians(180)), False)
sketch6.addGeometry(Part.LineSegment(App.Vector(109, 146, 0), App.Vector(109, 16, 0)), False)
sketch6.addGeometry(Part.ArcOfCircle(Part.Circle(App.Vector(130, 16, 0), App.Vector(0, 0, 1), 21), math.radians(180), math.radians(360)), False)
sketch6.addConstraint(Sketcher.Constraint("Tangent", 0, 2, 1, 1))
sketch6.addConstraint(Sketcher.Constraint("Tangent", 1, 2, 2, 1))
sketch6.addConstraint(Sketcher.Constraint("Tangent", 2, 2, 3, 1))
sketch6.addConstraint(Sketcher.Constraint("Tangent", 3, 2, 0, 1))
sketch6.addConstraint(Sketcher.Constraint("Tangent", 4, 2, 5, 1))
sketch6.addConstraint(Sketcher.Constraint("Tangent", 5, 2, 6, 1))
sketch6.addConstraint(Sketcher.Constraint("Tangent", 6, 2, 7, 1))
sketch6.addConstraint(Sketcher.Constraint("Tangent", 7, 2, 4, 1))
sketch6.addConstraint(Sketcher.Constraint("Tangent", 8, 2, 9, 1))
sketch6.addConstraint(Sketcher.Constraint("Tangent", 9, 2, 10, 1))
sketch6.addConstraint(Sketcher.Constraint("Tangent", 10, 2, 11, 1))
sketch6.addConstraint(Sketcher.Constraint("Tangent", 11, 2, 8, 1))
sketch6.addConstraint(Sketcher.Constraint("Tangent", 12, 2, 13, 1))
sketch6.addConstraint(Sketcher.Constraint("Tangent", 13, 2, 14, 1))
sketch6.addConstraint(Sketcher.Constraint("Tangent", 14, 2, 15, 1))
sketch6.addConstraint(Sketcher.Constraint("Tangent", 15, 2, 12, 1))
sketch6.addConstraint(Sketcher.Constraint("Tangent", 16, 2, 17, 1))
sketch6.addConstraint(Sketcher.Constraint("Tangent", 17, 2, 18, 1))
sketch6.addConstraint(Sketcher.Constraint("Tangent", 18, 2, 19, 1))
sketch6.addConstraint(Sketcher.Constraint("Tangent", 19, 2, 16, 1))
sketch6.addConstraint(Sketcher.Constraint("Vertical", 0))
sketch6.addConstraint(Sketcher.Constraint("Vertical", 2))
sketch6.addConstraint(Sketcher.Constraint("Vertical", 4))
sketch6.addConstraint(Sketcher.Constraint("Vertical", 6))
sketch6.addConstraint(Sketcher.Constraint("Vertical", 8))
sketch6.addConstraint(Sketcher.Constraint("Vertical", 10))
sketch6.addConstraint(Sketcher.Constraint("Vertical", 12))
sketch6.addConstraint(Sketcher.Constraint("Vertical", 14))
sketch6.addConstraint(Sketcher.Constraint("Vertical", 16))
sketch6.addConstraint(Sketcher.Constraint("Vertical", 18))
sketch6.addConstraint(Sketcher.Constraint("Equal", 3, 5))
sketch6.addConstraint(Sketcher.Constraint("Equal", 7, 9))
sketch6.addConstraint(Sketcher.Constraint("Equal", 11, 13))
sketch6.addConstraint(Sketcher.Constraint("Symmetric", 7, 3, 13, 3, -2))
sketch6.addConstraint(Sketcher.Constraint("Symmetric", 11, 3, 17, 3, -2))
sketch6.addConstraint(Sketcher.Constraint("PointOnObject", 1, 3, -2))
sketch6.addConstraint(Sketcher.Constraint("Horizontal", 1, 3, 5, 3))
sketch6.addConstraint(Sketcher.Constraint("Horizontal", 3, 3, 7, 3))
sketch6.addConstraint(Sketcher.Constraint("Horizontal", 7, 3, 9, 3))
sketch6.addConstraint(Sketcher.Constraint("Horizontal", 5, 3, 11, 3))
sketch6.addConstraint(Sketcher.Constraint("Horizontal", 11, 3, 15, 3))
sketch6.addConstraint(Sketcher.Constraint("Radius", 1, Q("20 mm")))
sketch6.addConstraint(Sketcher.Constraint("DistanceY", 0, 1, 0, 2, Q("220 mm")))
sketch6.addConstraint(Sketcher.Constraint("DistanceY", 16, 1, 16, 2, Q("130 mm")))
sketch6.addConstraint(Sketcher.Constraint("DistanceX", -1, 1, 5, 3, Q("65 mm")))
sketch6.addConstraint(Sketcher.Constraint("DistanceX", 9, 3, -1, 1, Q("130 mm")))
sketch6.addConstraint(Sketcher.Constraint("DistanceY", -1, 1, 1, 3, Q("146.5 mm")))
sketch6.addConstraint(Sketcher.Constraint("Radius", 17, Q("20.952961 mm")))
pocket4 = body.newObject("PartDesign::Pocket", "Pocket003")
pocket4.Profile = sketch6
pocket4.Length = 10

# Sketch on XY plane
sketch7 = body.newObject("Sketcher::SketchObject", "Sketch006")
sketch7.AttachmentSupport = (doc.getObject("XY_Plane"), [""])
sketch7.MapMode = "FlatFace"
sketch7.AttachmentOffset = App.Placement(App.Vector(0, 0, 6), App.Rotation())
sketch7.addGeometry(Part.Circle(App.Vector(156.5, -171.5, 0), App.Vector(0, 0, 1), 1.6), False)
sketch7.addGeometry(Part.Circle(App.Vector(156.5, -141.5, 0), App.Vector(0, 0, 1), 1.6), False)
sketch7.addGeometry(Part.Circle(App.Vector(161.5, -21.5, 0), App.Vector(0, 0, 1), 1.6), False)
sketch7.addGeometry(Part.Circle(App.Vector(131.5, -21.5, 0), App.Vector(0, 0, 1), 1.6), False)
sketch7.addConstraint(Sketcher.Constraint("Equal", 0, 1))
sketch7.addConstraint(Sketcher.Constraint("Equal", 1, 2))
sketch7.addConstraint(Sketcher.Constraint("Equal", 2, 3))
sketch7.addConstraint(Sketcher.Constraint("Horizontal", 2, 3, 3, 3))
sketch7.addConstraint(Sketcher.Constraint("Vertical", 0, 3, 1, 3))
sketch7.addConstraint(Sketcher.Constraint("Diameter", 0, Q("3.3 mm")))
sketch7.addConstraint(Sketcher.Constraint("DistanceY", 0, 3, 1, 3, Q("30 mm")))
sketch7.addConstraint(Sketcher.Constraint("DistanceX", 1, 3, 2, 3, Q("5 mm")))
sketch7.addConstraint(Sketcher.Constraint("DistanceY", 1, 3, 2, 3, Q("120 mm")))
sketch7.addConstraint(Sketcher.Constraint("DistanceX", 3, 3, 2, 3, Q("30 mm")))
sketch7.addConstraint(Sketcher.Constraint("DistanceX", -1, 1, 0, 3, Q("156.5 mm")))
sketch7.addConstraint(Sketcher.Constraint("DistanceY", 0, 3, -1, 1, Q("171.5 mm")))
doc.recompute()
hole2 = body.newObject("PartDesign::Hole", "Hole001")
hole2.Profile = sketch7
hole2.ThreadType = "None"
hole2.Diameter = 3.3
hole2.DepthType = "Dimension"
hole2.Depth = 10.1
hole2.DrillPoint = "Angled"
hole2.DrillPointAngle = 118

doc.recompute()
